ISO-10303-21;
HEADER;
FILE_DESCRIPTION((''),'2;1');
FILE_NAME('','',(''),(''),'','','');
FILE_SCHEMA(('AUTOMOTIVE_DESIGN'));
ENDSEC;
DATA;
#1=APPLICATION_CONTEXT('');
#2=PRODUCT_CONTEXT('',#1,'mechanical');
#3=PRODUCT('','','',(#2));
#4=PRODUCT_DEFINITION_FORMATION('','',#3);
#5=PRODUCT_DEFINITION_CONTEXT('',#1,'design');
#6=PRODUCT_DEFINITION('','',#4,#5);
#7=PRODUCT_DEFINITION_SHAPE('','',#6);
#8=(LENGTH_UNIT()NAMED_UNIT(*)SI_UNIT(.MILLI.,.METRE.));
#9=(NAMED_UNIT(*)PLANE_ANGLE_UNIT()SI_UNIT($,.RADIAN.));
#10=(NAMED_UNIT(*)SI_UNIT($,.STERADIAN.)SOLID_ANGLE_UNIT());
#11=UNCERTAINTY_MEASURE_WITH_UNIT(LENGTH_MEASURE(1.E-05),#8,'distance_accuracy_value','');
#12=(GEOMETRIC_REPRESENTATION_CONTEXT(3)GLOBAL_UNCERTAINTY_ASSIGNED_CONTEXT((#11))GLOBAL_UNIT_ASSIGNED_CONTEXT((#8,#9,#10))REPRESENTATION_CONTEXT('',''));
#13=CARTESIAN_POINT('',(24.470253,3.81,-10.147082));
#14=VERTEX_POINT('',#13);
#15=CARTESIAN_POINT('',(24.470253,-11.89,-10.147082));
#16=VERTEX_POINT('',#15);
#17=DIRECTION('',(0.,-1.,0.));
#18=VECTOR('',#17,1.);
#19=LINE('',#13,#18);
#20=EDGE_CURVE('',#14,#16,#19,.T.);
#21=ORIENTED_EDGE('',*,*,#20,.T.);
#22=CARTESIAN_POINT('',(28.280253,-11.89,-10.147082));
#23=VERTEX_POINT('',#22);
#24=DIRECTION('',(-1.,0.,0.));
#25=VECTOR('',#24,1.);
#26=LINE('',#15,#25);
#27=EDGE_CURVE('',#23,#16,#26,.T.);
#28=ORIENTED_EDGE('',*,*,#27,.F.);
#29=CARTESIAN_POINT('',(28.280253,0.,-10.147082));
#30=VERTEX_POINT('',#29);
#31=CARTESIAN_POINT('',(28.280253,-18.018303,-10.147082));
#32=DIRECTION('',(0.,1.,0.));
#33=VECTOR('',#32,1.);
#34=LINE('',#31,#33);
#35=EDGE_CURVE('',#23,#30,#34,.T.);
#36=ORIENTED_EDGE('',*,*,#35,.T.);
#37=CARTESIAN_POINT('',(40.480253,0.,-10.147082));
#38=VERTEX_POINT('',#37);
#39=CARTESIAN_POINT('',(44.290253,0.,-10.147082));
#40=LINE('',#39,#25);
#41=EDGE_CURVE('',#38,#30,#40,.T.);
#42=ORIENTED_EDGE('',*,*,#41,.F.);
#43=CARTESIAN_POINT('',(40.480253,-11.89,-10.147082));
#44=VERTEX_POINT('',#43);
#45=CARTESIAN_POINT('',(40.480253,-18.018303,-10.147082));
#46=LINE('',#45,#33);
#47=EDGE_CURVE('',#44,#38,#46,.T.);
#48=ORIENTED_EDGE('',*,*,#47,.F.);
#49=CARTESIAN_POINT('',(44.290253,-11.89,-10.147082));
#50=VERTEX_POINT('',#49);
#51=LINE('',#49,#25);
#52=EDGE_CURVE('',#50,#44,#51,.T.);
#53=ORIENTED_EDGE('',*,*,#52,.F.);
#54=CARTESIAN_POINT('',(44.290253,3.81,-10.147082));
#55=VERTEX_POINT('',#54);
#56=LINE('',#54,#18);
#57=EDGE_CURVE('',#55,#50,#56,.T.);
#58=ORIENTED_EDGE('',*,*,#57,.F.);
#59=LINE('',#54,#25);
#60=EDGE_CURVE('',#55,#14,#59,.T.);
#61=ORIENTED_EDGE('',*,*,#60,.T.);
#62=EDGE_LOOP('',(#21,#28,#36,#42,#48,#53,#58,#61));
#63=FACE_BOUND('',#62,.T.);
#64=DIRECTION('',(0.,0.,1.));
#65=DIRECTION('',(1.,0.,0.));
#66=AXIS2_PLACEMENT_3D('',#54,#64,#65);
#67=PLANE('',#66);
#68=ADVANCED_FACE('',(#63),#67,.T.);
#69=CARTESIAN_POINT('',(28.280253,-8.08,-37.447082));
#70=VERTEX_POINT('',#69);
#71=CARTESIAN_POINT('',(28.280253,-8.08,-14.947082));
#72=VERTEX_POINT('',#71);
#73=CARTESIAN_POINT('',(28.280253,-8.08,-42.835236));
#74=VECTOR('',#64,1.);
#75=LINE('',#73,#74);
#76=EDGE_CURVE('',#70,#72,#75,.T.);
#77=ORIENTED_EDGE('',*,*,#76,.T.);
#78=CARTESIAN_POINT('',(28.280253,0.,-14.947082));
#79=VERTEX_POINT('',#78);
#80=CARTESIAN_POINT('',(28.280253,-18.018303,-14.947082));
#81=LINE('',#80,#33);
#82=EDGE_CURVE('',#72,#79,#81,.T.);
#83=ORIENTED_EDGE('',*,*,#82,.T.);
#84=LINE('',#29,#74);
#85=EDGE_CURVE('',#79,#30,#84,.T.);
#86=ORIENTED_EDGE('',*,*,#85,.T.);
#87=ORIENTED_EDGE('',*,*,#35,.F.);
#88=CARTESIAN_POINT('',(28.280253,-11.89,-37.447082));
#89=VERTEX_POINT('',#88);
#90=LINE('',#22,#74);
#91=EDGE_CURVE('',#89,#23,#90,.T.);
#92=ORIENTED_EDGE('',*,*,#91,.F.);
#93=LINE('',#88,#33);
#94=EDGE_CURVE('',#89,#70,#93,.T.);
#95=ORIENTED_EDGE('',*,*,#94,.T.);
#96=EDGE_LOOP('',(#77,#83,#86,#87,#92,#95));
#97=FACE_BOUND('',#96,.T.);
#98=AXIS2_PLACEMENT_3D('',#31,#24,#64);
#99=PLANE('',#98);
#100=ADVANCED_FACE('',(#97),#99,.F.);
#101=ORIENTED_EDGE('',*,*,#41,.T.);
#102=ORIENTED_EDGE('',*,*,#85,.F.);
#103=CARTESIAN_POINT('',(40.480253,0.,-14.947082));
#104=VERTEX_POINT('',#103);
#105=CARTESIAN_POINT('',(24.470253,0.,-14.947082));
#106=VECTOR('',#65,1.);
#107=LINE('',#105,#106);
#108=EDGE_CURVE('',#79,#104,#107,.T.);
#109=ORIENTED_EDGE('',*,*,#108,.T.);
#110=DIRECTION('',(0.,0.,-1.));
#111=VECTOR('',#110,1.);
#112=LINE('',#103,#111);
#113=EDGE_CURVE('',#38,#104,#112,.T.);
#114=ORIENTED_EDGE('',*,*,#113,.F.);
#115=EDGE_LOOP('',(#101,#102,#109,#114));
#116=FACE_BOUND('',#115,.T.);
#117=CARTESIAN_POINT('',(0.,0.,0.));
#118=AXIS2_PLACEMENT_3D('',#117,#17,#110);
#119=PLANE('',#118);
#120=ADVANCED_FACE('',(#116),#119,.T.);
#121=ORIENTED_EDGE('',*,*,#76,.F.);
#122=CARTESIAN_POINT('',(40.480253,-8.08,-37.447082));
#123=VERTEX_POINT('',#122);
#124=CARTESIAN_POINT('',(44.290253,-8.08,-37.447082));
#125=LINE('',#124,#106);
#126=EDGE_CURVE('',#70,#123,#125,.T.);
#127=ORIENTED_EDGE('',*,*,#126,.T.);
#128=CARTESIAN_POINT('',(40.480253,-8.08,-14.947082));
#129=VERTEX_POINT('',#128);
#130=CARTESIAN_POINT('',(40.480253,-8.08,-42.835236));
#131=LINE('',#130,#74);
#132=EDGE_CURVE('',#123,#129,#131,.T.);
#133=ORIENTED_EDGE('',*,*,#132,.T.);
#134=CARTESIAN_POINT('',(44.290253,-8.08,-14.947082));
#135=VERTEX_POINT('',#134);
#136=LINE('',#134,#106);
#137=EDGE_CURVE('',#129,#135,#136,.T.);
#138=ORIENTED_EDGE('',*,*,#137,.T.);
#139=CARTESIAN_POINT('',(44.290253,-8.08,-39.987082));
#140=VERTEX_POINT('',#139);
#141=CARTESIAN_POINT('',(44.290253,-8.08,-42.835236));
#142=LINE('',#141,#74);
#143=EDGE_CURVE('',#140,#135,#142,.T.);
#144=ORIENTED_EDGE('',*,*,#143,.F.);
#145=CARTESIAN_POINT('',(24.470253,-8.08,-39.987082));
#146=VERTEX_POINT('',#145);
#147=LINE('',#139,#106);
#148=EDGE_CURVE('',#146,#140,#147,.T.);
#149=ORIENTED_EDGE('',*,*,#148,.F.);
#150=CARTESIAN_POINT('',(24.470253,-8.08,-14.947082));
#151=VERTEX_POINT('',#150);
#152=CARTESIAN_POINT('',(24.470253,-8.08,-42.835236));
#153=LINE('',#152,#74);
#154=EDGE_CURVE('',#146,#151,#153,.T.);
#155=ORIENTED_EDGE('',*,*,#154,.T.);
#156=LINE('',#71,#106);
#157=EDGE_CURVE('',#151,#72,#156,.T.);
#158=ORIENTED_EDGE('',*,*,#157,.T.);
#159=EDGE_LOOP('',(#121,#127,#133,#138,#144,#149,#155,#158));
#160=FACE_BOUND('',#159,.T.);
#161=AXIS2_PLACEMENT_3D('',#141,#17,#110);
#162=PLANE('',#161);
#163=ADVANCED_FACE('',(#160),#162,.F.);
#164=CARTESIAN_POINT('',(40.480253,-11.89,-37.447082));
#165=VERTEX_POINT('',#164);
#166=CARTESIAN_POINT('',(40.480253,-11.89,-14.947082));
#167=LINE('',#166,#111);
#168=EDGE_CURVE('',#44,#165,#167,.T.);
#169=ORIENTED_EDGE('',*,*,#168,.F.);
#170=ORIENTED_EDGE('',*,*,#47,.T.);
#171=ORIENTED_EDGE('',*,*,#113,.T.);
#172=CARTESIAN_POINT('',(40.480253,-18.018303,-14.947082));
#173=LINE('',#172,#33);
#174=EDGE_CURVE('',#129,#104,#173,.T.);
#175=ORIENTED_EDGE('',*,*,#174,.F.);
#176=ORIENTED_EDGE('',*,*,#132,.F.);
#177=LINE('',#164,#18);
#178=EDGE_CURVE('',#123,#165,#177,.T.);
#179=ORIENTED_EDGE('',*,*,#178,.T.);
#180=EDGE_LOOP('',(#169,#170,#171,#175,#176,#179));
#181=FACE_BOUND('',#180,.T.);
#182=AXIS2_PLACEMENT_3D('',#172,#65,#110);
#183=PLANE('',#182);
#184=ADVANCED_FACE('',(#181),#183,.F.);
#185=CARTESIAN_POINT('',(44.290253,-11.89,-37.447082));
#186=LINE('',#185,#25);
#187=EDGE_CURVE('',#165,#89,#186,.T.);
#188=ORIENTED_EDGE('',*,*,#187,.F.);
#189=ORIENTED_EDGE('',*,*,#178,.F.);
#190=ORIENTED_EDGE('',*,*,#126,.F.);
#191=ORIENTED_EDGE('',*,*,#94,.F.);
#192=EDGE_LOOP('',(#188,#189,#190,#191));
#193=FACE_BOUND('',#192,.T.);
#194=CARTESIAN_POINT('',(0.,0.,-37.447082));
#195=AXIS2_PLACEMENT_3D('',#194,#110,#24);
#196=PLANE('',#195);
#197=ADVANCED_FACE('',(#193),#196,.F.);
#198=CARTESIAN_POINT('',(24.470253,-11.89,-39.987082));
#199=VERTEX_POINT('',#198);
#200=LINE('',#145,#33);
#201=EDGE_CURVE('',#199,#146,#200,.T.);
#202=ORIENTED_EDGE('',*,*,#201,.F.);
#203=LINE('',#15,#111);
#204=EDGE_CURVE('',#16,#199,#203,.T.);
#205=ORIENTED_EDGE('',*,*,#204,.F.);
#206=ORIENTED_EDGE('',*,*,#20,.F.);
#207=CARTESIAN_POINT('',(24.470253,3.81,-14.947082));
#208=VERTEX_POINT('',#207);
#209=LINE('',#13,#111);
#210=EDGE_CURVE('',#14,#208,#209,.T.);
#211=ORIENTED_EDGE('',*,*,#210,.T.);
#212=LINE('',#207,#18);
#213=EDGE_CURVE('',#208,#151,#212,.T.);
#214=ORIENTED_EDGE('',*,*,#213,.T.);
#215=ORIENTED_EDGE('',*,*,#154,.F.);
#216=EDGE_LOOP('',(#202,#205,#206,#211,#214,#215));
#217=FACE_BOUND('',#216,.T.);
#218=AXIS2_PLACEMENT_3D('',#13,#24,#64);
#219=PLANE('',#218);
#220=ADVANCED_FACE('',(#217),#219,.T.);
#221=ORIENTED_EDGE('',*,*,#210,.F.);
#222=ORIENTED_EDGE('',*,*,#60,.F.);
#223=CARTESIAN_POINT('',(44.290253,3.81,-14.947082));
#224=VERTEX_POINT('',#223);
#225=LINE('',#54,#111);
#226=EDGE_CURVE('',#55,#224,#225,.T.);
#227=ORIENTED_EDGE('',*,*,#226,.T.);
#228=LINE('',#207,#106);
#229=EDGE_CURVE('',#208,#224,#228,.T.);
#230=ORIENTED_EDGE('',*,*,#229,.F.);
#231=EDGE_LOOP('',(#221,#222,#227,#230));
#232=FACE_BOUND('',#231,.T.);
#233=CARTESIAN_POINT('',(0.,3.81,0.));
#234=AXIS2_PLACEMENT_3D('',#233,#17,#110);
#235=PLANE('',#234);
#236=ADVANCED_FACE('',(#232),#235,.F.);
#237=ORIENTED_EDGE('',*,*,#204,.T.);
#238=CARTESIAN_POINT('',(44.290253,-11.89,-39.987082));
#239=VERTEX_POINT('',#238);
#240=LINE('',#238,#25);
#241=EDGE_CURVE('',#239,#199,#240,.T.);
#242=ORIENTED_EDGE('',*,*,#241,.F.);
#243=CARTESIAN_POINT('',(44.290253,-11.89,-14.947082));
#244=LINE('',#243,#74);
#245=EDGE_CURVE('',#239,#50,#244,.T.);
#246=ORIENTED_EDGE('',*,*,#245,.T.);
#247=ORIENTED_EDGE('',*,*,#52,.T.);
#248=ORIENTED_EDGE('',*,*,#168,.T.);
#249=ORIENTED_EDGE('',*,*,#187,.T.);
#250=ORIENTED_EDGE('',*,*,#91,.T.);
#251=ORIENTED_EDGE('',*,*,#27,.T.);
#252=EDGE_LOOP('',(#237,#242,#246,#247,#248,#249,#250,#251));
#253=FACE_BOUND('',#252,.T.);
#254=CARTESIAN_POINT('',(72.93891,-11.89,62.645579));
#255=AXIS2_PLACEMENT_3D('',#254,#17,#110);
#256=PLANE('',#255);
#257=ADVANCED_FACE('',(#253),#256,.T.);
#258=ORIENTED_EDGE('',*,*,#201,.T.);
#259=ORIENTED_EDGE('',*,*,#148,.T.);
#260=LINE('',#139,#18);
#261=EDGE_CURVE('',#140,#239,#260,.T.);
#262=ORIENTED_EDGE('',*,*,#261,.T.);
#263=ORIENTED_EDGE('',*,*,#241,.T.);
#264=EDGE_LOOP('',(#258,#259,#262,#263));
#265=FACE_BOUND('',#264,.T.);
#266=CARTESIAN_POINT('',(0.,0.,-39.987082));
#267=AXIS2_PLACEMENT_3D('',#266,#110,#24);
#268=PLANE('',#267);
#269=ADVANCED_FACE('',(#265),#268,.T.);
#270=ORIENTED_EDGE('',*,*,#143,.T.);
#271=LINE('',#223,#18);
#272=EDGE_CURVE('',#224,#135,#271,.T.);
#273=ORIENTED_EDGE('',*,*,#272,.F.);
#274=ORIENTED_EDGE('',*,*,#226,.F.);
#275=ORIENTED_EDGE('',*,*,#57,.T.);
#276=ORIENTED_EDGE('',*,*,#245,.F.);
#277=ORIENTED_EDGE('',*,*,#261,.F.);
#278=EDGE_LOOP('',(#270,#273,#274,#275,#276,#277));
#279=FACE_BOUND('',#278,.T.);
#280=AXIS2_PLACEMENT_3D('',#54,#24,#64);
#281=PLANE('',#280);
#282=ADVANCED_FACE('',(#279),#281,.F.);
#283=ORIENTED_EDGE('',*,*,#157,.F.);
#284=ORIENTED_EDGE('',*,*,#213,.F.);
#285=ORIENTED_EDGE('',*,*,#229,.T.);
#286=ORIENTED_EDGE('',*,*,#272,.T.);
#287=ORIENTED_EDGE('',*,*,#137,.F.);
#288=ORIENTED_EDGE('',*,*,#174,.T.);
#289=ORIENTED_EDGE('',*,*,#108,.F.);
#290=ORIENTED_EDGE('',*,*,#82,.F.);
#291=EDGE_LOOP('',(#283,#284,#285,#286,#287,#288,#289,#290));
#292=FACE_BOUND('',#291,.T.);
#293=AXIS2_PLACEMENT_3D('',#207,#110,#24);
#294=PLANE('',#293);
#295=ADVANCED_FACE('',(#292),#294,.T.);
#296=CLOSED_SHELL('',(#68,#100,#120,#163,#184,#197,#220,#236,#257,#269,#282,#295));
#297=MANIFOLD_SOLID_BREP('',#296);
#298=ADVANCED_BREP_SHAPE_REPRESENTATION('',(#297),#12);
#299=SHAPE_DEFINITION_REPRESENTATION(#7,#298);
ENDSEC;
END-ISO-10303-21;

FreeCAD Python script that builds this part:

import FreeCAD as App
import Part
import Sketcher
Q = App.Units.Quantity


def add_polygon(sketch, points):
    """Adds a closed chain of lines whose ends are joined by coincident constraints."""
    first, n = sketch.GeometryCount, len(points)
    for a, b in zip(points, points[1:] + points[:1]):
        sketch.addGeometry(Part.LineSegment(App.Vector(*a, 0), App.Vector(*b, 0)), False)
    for i in range(n):
        sketch.addConstraint(Sketcher.Constraint("Coincident", first + i, 2, first + (i + 1) % n, 1))

doc = App.newDocument("Part")
body = doc.addObject("PartDesign::Body", "Body")

sketch1 = body.newObject("Sketcher::SketchObject", "Sketch")
sketch1.AttachmentSupport = (doc.getObject("XZ_Plane"), [""])
sketch1.MapMode = "FlatFace"
add_polygon(sketch1, [(24.5, -14.9), (24.5, -10.1), (44.3, -10.1), (44.3, -14.9)])
sketch1.addConstraint(Sketcher.Constraint("Vertical", 0))
sketch1.addConstraint(Sketcher.Constraint("Horizontal", 1))
sketch1.addConstraint(Sketcher.Constraint("Vertical", 2))
sketch1.addConstraint(Sketcher.Constraint("Horizontal", 3))
sketch1.addConstraint(Sketcher.Constraint("DistanceY", 0, 1, 0, 2, Q("4.8 mm")))
sketch1.addConstraint(Sketcher.Constraint("DistanceX", 1, 1, 1, 2, Q("19.82 mm")))
sketch1.addConstraint(Sketcher.Constraint("DistanceX", -1, 1, 0, 2, Q("24.470253 mm")))
sketch1.addConstraint(Sketcher.Constraint("DistanceY", 0, 2, -1, 1, Q("10.147082 mm")))
pad1 = body.newObject("PartDesign::Pad", "Pad")
pad1.Profile = sketch1
pad1.Length = 3.81
pad1.Reversed = True

sketch2 = body.newObject("Sketcher::SketchObject", "Sketch001")
sketch2.AttachmentSupport = (doc.getObject("XZ_Plane"), [""])
sketch2.MapMode = "FlatFace"
add_polygon(sketch2, [(24.5, -10.1), (24.5, -14.9), (28.3, -14.9), (28.3, -10.1)])
add_polygon(sketch2, [(40.5, -10.1), (40.5, -14.9), (44.3, -14.9), (44.3, -10.1)])
sketch2.addConstraint(Sketcher.Constraint("Vertical", 0))
sketch2.addConstraint(Sketcher.Constraint("Horizontal", 1))
sketch2.addConstraint(Sketcher.Constraint("Vertical", 2))
sketch2.addConstraint(Sketcher.Constraint("Horizontal", 3))
sketch2.addConstraint(Sketcher.Constraint("Vertical", 4))
sketch2.addConstraint(Sketcher.Constraint("Horizontal", 5))
sketch2.addConstraint(Sketcher.Constraint("Vertical", 6))
sketch2.addConstraint(Sketcher.Constraint("Horizontal", 7))
sketch2.addConstraint(Sketcher.Constraint("Horizontal", 1, 2, 4, 2))
sketch2.addConstraint(Sketcher.Constraint("Horizontal", 3, 2, 6, 2))
sketch2.addConstraint(Sketcher.Constraint("Equal", 3, 5))
sketch2.addConstraint(Sketcher.Constraint("DistanceY", 0, 2, 0, 1, Q("4.8 mm")))
sketch2.addConstraint(Sketcher.Constraint("DistanceX", 1, 1, 1, 2, Q("3.81 mm")))
sketch2.addConstraint(Sketcher.Constraint("DistanceX", 1, 2, 4, 2, Q("12.2 mm")))
sketch2.addConstraint(Sketcher.Constraint("DistanceX", -1, 1, 0, 2, Q("24.470253 mm")))
sketch2.addConstraint(Sketcher.Constraint("DistanceY", 0, 2, -1, 1, Q("14.947082 mm")))
pad2 = body.newObject("PartDesign::Pad", "Pad001")
pad2.Profile = sketch2
pad2.Length = 11.89

sketch3 = body.newObject("Sketcher::SketchObject", "Sketch002")
sketch3.AttachmentSupport = (doc.getObject("XY_Plane"), [""])
sketch3.MapMode = "FlatFace"
sketch3.AttachmentOffset = App.Placement(App.Vector(0, 0, -14.947082), App.Rotation())
add_polygon(sketch3, [(44.3, -8.1), (44.3, -11.9), (40.5, -11.9), (40.5, -8.1)])
add_polygon(sketch3, [(28.3, -8.1), (28.3, -11.9), (24.5, -11.9), (24.5, -8.1)])
sketch3.addConstraint(Sketcher.Constraint("Vertical", 0))
sketch3.addConstraint(Sketcher.Constraint("Horizontal", 1))
sketch3.addConstraint(Sketcher.Constraint("Vertical", 2))
sketch3.addConstraint(Sketcher.Constraint("Horizontal", 3))
sketch3.addConstraint(Sketcher.Constraint("Vertical", 4))
sketch3.addConstraint(Sketcher.Constraint("Horizontal", 5))
sketch3.addConstraint(Sketcher.Constraint("Vertical", 6))
sketch3.addConstraint(Sketcher.Constraint("Horizontal", 7))
sketch3.addConstraint(Sketcher.Constraint("Horizontal", 1, 2, 4, 2))
sketch3.addConstraint(Sketcher.Constraint("Horizontal", 3, 2, 6, 2))
sketch3.addConstraint(Sketcher.Constraint("Equal", 3, 5))
sketch3.addConstraint(Sketcher.Constraint("Equal", 7, 0))
sketch3.addConstraint(Sketcher.Constraint("DistanceX", 1, 2, 1, 1, Q("3.81 mm")))
sketch3.addConstraint(Sketcher.Constraint("DistanceX", 4, 2, 1, 2, Q("12.2 mm")))
sketch3.addConstraint(Sketcher.Constraint("DistanceY", 0, 2, -1, 1, Q("11.89 mm")))
sketch3.addConstraint(Sketcher.Constraint("DistanceX", -1, 1, 0, 2, Q("44.290253 mm")))
pad3 = body.newObject("PartDesign::Pad", "Pad002")
pad3.Profile = sketch3
pad3.Length = 22.5
pad3.Reversed = True

sketch4 = body.newObject("Sketcher::SketchObject", "Sketch003")
sketch4.AttachmentSupport = (doc.getObject("XY_Plane"), [""])
sketch4.MapMode = "FlatFace"
sketch4.AttachmentOffset = App.Placement(App.Vector(0, 0, -37.447082), App.Rotation())
add_polygon(sketch4, [(44.3, -8.1), (44.3, -11.9), (24.5, -11.9), (24.5, -8.1)])
sketch4.addConstraint(Sketcher.Constraint("Vertical", 0))
sketch4.addConstraint(Sketcher.Constraint("Horizontal", 1))
sketch4.addConstraint(Sketcher.Constraint("Vertical", 2))
sketch4.addConstraint(Sketcher.Constraint("Horizontal", 3))
sketch4.addConstraint(Sketcher.Constraint("DistanceX", 1, 2, 1, 1, Q("19.82 mm")))
sketch4.addConstraint(Sketcher.Constraint("DistanceY", 0, 2, 0, 1, Q("3.81 mm")))
sketch4.addConstraint(Sketcher.Constraint("DistanceY", 0, 2, -1, 1, Q("11.89 mm")))
sketch4.addConstraint(Sketcher.Constraint("DistanceX", -1, 1, 0, 2, Q("44.290253 mm")))
pad4 = body.newObject("PartDesign::Pad", "Pad003")
pad4.Profile = sketch4
pad4.Length = 2.54
pad4.Reversed = True

doc.recompute()
